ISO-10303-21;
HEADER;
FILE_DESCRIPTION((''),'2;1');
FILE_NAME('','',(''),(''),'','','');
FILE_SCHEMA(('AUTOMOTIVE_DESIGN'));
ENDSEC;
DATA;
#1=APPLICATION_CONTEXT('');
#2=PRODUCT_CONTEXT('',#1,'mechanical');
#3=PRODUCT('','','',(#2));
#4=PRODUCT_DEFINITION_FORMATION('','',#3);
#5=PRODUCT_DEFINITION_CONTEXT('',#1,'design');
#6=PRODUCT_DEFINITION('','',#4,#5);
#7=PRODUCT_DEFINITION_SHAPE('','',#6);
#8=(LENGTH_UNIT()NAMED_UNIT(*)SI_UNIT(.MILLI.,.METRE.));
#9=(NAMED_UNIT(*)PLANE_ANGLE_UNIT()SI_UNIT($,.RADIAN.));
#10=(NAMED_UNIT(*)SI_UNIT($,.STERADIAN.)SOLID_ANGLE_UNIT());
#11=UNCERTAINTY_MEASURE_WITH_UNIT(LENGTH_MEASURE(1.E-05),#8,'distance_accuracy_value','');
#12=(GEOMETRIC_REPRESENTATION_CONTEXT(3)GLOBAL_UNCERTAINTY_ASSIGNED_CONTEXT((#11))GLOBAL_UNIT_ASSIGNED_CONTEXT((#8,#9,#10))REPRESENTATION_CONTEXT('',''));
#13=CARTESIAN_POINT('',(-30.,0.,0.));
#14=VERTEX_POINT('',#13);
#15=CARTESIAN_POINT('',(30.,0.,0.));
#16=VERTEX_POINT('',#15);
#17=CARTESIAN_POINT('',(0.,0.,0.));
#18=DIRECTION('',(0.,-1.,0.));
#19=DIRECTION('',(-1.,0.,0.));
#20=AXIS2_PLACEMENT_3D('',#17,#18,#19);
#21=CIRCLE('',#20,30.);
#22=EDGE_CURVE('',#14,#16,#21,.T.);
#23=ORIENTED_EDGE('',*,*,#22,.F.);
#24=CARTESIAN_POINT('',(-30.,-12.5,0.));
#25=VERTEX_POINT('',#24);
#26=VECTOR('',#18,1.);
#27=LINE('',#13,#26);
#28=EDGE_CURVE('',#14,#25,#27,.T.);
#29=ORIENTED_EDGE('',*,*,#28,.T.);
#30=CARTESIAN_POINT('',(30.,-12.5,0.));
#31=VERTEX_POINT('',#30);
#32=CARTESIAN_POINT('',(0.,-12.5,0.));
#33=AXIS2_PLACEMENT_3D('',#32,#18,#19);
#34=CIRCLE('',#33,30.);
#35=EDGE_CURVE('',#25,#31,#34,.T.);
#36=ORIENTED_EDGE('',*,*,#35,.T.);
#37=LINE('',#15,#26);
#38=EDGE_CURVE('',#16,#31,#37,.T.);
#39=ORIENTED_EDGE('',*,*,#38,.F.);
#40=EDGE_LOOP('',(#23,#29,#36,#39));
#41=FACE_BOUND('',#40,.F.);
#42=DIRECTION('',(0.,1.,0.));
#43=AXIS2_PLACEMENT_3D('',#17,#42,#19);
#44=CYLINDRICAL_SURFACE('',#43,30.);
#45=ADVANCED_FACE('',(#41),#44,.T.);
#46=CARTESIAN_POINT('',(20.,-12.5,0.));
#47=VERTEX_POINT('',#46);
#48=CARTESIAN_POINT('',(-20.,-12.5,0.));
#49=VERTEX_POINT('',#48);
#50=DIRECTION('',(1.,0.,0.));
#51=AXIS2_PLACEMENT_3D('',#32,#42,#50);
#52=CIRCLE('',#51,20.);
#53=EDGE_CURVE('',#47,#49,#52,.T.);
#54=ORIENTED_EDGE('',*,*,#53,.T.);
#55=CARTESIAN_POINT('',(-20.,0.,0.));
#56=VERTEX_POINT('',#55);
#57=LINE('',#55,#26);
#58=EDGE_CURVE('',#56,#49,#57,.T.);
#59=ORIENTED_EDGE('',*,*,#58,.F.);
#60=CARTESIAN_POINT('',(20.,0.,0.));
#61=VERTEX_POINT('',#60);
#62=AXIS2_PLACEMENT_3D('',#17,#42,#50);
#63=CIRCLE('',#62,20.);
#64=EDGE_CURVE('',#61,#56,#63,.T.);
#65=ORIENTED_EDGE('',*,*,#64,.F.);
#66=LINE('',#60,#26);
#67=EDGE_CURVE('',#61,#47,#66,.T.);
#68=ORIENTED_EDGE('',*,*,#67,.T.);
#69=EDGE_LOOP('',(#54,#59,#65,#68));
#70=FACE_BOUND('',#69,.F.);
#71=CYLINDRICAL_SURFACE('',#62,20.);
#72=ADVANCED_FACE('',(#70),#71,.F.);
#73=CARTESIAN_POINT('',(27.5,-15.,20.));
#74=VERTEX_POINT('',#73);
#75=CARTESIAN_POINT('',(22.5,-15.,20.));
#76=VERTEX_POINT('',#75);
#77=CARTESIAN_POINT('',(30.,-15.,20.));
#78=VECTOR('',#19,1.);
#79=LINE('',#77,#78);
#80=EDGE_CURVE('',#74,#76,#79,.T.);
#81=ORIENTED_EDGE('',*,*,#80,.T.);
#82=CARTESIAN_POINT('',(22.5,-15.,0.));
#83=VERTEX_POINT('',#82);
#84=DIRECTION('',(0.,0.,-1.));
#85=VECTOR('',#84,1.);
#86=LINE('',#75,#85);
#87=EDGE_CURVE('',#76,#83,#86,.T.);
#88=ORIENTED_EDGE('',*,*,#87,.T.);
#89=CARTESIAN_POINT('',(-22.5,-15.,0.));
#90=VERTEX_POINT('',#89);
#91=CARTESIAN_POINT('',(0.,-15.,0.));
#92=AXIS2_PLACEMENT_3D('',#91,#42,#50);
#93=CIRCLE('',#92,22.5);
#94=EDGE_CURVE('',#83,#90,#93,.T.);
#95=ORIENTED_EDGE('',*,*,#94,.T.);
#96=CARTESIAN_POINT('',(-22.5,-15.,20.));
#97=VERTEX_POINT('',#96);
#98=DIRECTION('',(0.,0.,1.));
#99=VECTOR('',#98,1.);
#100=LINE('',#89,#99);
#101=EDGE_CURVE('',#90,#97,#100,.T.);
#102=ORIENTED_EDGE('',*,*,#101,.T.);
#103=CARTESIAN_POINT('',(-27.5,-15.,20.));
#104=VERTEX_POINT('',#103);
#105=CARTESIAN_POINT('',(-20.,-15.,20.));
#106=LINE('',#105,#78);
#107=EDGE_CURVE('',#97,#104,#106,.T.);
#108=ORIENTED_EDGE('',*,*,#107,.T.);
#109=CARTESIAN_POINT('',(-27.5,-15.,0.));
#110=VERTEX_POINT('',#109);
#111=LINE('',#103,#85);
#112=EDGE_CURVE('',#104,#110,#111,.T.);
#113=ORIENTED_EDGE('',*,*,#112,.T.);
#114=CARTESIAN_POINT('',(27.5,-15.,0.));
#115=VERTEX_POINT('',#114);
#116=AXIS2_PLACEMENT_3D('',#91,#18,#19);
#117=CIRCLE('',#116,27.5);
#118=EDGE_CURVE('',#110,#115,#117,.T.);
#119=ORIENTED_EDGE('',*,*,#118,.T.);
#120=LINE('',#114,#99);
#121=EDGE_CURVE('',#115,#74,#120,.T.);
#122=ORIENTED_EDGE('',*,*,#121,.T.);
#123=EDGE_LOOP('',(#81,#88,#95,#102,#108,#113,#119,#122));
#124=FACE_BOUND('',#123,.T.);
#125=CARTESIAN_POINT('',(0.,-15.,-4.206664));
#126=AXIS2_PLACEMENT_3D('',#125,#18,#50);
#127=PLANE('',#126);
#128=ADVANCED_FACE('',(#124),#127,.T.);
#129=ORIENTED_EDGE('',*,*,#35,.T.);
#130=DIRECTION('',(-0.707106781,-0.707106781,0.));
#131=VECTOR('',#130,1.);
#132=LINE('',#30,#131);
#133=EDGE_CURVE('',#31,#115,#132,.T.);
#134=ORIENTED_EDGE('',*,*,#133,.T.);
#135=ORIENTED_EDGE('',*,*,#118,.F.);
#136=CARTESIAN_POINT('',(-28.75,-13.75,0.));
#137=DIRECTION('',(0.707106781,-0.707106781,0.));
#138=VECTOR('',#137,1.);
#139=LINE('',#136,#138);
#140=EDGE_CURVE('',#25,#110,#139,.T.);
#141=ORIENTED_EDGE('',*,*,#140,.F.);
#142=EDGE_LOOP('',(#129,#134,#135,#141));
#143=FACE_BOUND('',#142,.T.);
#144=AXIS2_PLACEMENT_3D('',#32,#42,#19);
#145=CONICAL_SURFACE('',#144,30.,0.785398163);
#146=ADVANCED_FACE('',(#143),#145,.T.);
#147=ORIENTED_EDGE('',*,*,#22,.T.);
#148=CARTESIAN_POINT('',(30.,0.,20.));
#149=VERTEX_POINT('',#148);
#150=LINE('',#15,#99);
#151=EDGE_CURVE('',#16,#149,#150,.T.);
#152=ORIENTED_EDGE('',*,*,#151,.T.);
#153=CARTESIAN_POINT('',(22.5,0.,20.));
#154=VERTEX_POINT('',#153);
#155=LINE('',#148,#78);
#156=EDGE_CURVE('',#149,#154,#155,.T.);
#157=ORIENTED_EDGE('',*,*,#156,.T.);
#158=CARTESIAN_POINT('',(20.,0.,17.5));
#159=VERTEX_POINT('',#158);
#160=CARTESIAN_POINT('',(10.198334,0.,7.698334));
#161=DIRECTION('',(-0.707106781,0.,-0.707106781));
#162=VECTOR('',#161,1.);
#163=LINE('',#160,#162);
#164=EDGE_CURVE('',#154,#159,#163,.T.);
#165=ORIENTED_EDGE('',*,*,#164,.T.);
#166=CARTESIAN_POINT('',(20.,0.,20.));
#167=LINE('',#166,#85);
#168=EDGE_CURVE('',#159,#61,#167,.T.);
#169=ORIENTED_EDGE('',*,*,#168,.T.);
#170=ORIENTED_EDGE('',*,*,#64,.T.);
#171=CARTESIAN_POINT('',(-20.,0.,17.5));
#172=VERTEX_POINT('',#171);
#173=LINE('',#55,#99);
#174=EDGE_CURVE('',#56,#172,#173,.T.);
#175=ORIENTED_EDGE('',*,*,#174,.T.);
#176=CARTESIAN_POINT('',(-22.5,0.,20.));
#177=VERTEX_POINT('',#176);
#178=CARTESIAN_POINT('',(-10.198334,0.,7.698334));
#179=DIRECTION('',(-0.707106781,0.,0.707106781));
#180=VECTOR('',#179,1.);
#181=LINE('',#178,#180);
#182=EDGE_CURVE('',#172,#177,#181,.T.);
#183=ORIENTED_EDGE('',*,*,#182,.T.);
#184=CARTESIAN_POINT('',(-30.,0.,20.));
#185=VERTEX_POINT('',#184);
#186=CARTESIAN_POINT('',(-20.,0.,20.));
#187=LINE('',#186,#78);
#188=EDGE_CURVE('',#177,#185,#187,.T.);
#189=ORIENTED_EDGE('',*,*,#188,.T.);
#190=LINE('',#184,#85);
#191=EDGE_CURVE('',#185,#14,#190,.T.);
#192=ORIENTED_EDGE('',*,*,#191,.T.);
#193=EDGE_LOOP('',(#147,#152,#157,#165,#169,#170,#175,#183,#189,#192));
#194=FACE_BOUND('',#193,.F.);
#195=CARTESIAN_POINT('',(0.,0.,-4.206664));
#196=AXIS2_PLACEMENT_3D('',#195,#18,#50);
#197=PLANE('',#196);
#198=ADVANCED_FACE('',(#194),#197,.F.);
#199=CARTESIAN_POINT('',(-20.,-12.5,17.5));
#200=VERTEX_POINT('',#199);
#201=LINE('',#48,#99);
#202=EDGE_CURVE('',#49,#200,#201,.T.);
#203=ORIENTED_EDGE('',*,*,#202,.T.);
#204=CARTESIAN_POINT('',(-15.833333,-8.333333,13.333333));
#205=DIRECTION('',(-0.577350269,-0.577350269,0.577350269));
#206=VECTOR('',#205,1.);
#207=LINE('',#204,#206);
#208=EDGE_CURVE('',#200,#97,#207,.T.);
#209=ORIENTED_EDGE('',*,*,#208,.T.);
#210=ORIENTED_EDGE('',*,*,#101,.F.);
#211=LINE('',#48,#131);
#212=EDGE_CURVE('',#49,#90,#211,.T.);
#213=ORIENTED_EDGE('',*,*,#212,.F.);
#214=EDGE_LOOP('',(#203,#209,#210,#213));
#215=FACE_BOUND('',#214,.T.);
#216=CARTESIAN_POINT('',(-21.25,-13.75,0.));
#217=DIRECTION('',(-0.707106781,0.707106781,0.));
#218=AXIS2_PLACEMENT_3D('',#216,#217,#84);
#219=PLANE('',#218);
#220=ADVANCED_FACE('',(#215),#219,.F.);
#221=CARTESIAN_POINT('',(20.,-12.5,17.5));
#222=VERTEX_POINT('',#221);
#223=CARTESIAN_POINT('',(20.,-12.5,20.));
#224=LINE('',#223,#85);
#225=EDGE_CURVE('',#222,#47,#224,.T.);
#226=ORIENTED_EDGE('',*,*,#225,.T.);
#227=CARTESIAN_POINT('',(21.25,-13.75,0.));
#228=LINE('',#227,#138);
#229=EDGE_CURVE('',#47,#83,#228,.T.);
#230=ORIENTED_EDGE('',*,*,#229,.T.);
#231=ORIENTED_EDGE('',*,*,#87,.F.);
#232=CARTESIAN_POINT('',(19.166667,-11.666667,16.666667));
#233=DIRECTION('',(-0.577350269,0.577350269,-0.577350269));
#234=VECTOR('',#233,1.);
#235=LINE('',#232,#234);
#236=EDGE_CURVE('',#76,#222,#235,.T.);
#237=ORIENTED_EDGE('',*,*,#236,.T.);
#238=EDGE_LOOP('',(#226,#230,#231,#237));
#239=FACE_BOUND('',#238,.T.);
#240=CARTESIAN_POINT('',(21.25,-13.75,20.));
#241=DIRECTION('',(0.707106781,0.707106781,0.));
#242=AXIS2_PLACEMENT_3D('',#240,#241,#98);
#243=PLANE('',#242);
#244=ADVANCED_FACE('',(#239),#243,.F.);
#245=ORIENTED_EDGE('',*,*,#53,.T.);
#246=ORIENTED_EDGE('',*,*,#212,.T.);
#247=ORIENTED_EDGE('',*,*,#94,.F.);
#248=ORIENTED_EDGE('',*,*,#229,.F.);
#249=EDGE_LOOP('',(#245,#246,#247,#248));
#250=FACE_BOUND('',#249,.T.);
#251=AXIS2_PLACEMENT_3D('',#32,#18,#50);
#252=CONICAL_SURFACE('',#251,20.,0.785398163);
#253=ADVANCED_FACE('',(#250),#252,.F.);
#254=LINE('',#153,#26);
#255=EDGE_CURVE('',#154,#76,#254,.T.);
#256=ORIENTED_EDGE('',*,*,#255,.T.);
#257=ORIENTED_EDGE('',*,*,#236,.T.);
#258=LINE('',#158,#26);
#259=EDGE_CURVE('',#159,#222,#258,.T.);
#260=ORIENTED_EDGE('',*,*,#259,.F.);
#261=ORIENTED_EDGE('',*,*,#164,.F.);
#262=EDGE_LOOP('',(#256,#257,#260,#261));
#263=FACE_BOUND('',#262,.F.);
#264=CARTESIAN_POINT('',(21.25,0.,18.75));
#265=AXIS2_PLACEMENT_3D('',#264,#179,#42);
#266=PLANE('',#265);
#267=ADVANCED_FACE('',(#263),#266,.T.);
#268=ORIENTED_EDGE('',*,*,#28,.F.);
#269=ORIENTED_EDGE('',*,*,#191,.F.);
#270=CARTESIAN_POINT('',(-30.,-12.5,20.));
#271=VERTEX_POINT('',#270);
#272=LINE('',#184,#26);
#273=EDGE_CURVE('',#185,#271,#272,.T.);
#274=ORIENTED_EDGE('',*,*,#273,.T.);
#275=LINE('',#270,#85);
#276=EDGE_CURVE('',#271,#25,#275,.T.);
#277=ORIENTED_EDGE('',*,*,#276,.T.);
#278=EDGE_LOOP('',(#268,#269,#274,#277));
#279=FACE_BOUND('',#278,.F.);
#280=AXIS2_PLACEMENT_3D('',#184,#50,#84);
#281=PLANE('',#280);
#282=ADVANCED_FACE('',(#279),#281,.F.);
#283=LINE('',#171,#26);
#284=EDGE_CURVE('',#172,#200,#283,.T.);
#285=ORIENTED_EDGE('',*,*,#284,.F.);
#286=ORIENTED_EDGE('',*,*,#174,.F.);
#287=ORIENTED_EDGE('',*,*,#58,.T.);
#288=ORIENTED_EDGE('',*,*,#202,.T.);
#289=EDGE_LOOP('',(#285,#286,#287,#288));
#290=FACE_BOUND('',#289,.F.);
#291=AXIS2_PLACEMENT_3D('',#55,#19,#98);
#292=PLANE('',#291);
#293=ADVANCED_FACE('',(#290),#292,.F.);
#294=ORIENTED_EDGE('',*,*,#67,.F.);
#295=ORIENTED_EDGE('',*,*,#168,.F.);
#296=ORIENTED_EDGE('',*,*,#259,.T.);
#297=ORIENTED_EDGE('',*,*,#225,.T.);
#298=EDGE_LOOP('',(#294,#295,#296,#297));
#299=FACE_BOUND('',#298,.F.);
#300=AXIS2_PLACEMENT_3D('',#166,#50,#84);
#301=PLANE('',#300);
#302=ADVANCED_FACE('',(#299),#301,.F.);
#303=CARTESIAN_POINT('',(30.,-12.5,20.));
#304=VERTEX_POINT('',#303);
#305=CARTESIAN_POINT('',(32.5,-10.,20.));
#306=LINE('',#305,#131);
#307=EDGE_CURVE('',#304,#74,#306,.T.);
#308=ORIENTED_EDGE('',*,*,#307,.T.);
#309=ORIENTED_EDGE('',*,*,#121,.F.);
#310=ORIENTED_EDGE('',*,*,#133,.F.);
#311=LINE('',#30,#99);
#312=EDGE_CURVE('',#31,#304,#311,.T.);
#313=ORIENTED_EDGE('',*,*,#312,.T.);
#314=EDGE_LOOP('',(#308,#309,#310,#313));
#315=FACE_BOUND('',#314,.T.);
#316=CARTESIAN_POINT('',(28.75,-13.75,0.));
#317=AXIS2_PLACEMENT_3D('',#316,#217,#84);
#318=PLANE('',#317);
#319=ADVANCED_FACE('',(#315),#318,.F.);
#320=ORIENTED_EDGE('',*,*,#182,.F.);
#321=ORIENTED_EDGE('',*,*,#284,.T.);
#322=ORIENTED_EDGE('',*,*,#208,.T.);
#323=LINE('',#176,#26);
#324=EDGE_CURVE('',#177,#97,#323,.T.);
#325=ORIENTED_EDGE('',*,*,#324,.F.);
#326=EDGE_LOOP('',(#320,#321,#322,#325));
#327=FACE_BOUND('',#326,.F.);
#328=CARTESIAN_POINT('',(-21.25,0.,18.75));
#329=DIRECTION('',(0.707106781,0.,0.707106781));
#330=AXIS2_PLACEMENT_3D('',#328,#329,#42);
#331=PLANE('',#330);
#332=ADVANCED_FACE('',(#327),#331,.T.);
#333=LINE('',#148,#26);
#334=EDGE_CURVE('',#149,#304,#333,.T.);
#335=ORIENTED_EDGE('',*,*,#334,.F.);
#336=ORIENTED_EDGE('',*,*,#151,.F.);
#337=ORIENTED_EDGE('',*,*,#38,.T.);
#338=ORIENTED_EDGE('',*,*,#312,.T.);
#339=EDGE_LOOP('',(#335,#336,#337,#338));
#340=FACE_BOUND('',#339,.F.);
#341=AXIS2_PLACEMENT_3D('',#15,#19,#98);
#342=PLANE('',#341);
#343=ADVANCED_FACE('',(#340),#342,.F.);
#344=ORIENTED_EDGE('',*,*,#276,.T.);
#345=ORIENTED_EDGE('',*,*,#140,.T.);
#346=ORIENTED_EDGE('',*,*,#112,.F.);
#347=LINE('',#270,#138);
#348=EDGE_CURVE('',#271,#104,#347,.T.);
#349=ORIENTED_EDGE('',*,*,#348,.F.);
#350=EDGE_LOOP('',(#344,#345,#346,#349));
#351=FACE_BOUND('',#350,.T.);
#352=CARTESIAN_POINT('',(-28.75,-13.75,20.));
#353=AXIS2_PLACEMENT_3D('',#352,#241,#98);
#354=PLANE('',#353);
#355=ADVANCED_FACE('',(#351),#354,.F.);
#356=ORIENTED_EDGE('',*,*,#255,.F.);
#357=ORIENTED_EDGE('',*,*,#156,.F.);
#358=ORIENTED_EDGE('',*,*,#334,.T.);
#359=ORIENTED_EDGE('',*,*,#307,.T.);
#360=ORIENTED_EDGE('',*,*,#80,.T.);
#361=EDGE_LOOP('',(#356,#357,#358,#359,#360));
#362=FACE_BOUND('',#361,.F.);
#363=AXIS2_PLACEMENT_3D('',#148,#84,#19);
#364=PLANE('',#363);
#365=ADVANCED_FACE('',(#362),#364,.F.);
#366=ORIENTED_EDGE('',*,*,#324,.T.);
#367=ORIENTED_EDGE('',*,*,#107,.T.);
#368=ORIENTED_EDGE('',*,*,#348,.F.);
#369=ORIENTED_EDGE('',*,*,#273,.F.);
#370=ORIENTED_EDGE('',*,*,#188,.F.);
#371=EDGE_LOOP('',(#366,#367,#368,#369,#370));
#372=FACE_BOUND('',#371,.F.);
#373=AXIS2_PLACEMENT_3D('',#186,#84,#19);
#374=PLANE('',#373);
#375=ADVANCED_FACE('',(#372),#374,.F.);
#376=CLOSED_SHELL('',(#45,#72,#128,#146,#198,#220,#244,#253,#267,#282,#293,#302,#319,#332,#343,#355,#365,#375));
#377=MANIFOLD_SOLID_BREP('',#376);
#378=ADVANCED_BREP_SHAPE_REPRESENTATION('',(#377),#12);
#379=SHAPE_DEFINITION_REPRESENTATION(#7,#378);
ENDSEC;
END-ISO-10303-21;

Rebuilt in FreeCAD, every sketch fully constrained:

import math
import FreeCAD as App
import Part
import Sketcher


def edges_at(feature, points):
    """Names of the edges that pass closest to the given points."""
    edges = feature.Shape.Edges
    near = lambda p: min(range(len(edges)), key=lambda i: edges[i].distToShape(Part.Vertex(*p))[0])
    return sorted({f"Edge{near(p) + 1}" for p in points})

doc = App.newDocument("Part")
body = doc.addObject("PartDesign::Body", "Body")

# Sketch on XZ plane
sketch1 = body.newObject("Sketcher::SketchObject", "Sketch")
sketch1.AttachmentSupport = (doc.getObject("XZ_Plane"), [""])
sketch1.MapMode = "FlatFace"
sketch1.addGeometry([
    Part.ArcOfCircle(Part.Circle(App.Vector(0, 0, 0), App.Vector(0, 0, 1), 20), math.radians(180), math.radians(360)),  # 0
    Part.LineSegment(App.Vector(-20, 0, 0), App.Vector(-20, 20, 0)),  # 1
    Part.LineSegment(App.Vector(-20, 20, 0), App.Vector(-30, 20, 0)),  # 2
    Part.LineSegment(App.Vector(-30, 20, 0), App.Vector(-30, 0, 0)),  # 3
    Part.ArcOfCircle(Part.Circle(App.Vector(0, 0, 0), App.Vector(0, 0, 1), 30), math.radians(180), math.radians(360)),  # 4
    Part.LineSegment(App.Vector(30, 0, 0), App.Vector(30, 20, 0)),  # 5
    Part.LineSegment(App.Vector(30, 20, 0), App.Vector(20, 20, 0)),  # 6
    Part.LineSegment(App.Vector(20, 20, 0), App.Vector(20, 0, 0)),  # 7
], False)
sketch1.addConstraint([
    Sketcher.Constraint("Tangent", 0, 1, 1, 1),
    Sketcher.Constraint("Coincident", 1, 2, 2, 1),
    Sketcher.Constraint("Coincident", 2, 2, 3, 1),
    Sketcher.Constraint("Tangent", 3, 2, 4, 1),
    Sketcher.Constraint("Tangent", 4, 2, 5, 1),
    Sketcher.Constraint("Coincident", 5, 2, 6, 1),
    Sketcher.Constraint("Coincident", 6, 2, 7, 1),
    Sketcher.Constraint("Tangent", 7, 2, 0, 2),
    Sketcher.Constraint("Vertical", 1),
    Sketcher.Constraint("Horizontal", 2),
    Sketcher.Constraint("Vertical", 3),
    Sketcher.Constraint("Vertical", 5),
    Sketcher.Constraint("Horizontal", 6),
    Sketcher.Constraint("Vertical", 7),
    Sketcher.Constraint("Coincident", 0, 3, -1, 1),
    Sketcher.Constraint("Coincident", 4, 3, -1, 1),
    Sketcher.Constraint("Horizontal", 2, 2, 5, 2),
    Sketcher.Constraint("Radius", 0, 20.0),
    Sketcher.Constraint("Radius", 4, 30.0),
    Sketcher.Constraint("DistanceY", 1, 1, 1, 2, 20.0),
])
pad1 = body.newObject("PartDesign::Pad", "Pad")
pad1.Profile = sketch1
pad1.Length = 15
doc.recompute()

chamfer = body.newObject("PartDesign::Chamfer", "Chamfer")
chamfer.Base = (pad1, edges_at(pad1, [
    (20, -7.5, 20),
    (-20, -7.5, 20),
    (30, -15, 10),
    (-20, -15, 10),
]))
chamfer.Size = 2.5

doc.recompute()
